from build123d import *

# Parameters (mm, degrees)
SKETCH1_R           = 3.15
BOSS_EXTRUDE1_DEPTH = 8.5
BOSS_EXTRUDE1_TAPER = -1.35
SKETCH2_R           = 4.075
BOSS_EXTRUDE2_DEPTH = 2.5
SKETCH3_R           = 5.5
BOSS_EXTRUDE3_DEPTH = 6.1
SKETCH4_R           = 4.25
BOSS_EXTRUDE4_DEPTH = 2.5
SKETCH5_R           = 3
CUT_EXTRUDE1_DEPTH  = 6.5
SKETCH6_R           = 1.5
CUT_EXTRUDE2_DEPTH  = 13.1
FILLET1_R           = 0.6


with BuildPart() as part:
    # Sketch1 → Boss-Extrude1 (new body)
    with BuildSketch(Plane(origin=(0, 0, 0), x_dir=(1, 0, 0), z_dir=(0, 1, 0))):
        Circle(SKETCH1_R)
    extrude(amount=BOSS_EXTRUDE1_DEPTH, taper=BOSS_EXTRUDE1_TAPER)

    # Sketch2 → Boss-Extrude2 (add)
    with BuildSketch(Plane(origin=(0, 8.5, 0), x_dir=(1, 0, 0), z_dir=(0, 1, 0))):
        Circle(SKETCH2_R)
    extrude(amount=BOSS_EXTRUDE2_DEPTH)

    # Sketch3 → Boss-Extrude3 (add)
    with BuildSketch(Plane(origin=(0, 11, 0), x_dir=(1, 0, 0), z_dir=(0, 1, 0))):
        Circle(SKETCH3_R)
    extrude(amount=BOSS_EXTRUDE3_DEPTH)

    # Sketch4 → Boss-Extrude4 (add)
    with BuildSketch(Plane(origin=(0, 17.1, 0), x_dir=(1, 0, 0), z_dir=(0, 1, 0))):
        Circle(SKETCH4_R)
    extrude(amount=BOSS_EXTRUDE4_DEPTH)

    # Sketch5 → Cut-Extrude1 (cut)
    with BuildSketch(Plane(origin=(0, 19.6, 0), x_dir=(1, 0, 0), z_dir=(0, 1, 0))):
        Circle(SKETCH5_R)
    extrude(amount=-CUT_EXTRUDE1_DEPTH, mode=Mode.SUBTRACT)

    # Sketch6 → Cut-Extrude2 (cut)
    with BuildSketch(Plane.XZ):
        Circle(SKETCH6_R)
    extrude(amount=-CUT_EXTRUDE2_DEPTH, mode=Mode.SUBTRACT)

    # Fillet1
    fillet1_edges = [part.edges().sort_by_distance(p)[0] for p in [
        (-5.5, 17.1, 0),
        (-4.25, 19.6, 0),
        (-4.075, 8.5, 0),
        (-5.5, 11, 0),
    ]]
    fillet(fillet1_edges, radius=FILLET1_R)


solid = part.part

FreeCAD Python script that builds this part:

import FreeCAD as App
import Part
import Sketcher
from FreeCAD import Vector
Q = App.Units.Quantity


def edges_at(feature, points):
    """Names of the edges that pass closest to the given points."""
    edges = feature.Shape.Edges
    near = lambda p: min(range(len(edges)), key=lambda i: edges[i].distToShape(Part.Vertex(*p))[0])
    return sorted({f"Edge{near(p) + 1}" for p in points})

doc = App.newDocument("Part")
body = doc.addObject("PartDesign::Body", "Body")

# Sketch on XZ plane
sketch1 = body.newObject("Sketcher::SketchObject", "Sketch")
sketch1.AttachmentSupport = (doc.getObject("XZ_Plane"), [""])
sketch1.MapMode = "FlatFace"
sketch1.addGeometry(Part.Circle(Vector(0, 0, 0), Vector(0, 0, 1), 3.1), False)
sketch1.addConstraint([
    Sketcher.Constraint("Coincident", 0, 3, -1, 1),
    Sketcher.Constraint("Diameter", 0, Q("6.3 mm")),
])
pad1 = body.newObject("PartDesign::Pad", "Pad")
pad1.Profile = sketch1
pad1.Length = 8.5
pad1.Reversed = True
pad1.TaperAngle = 1.35

# Sketch on XZ plane
sketch2 = body.newObject("Sketcher::SketchObject", "Sketch001")
sketch2.AttachmentSupport = (doc.getObject("XZ_Plane"), [""])
sketch2.MapMode = "FlatFace"
sketch2.AttachmentOffset = App.Placement(Vector(0, 0, -8.5), App.Rotation())
sketch2.addGeometry(Part.Circle(Vector(0, 0, 0), Vector(0, 0, 1), 4.1), False)
sketch2.addConstraint([
    Sketcher.Constraint("Coincident", 0, 3, -1, 1),
    Sketcher.Constraint("Diameter", 0, Q("8.15 mm")),
])
pad2 = body.newObject("PartDesign::Pad", "Pad001")
pad2.Profile = sketch2
pad2.Length = 2.5
pad2.Reversed = True

# Sketch on XZ plane
sketch3 = body.newObject("Sketcher::SketchObject", "Sketch002")
sketch3.AttachmentSupport = (doc.getObject("XZ_Plane"), [""])
sketch3.MapMode = "FlatFace"
sketch3.AttachmentOffset = App.Placement(Vector(0, 0, -11), App.Rotation())
sketch3.addGeometry(Part.Circle(Vector(0, 0, 0), Vector(0, 0, 1), 6), False)
sketch3.addConstraint([
    Sketcher.Constraint("Coincident", 0, 3, -1, 1),
    Sketcher.Constraint("Diameter", 0, Q("11 mm")),
])
pad3 = body.newObject("PartDesign::Pad", "Pad002")
pad3.Profile = sketch3
pad3.Length = 6.1
pad3.Reversed = True

# Sketch on XZ plane
sketch4 = body.newObject("Sketcher::SketchObject", "Sketch003")
sketch4.AttachmentSupport = (doc.getObject("XZ_Plane"), [""])
sketch4.MapMode = "FlatFace"
sketch4.AttachmentOffset = App.Placement(Vector(0, 0, -17.1), App.Rotation())
sketch4.addGeometry(Part.Circle(Vector(0, 0, 0), Vector(0, 0, 1), 4.2), False)
sketch4.addConstraint([
    Sketcher.Constraint("Coincident", 0, 3, -1, 1),
    Sketcher.Constraint("Diameter", 0, Q("8.5 mm")),
])
pad4 = body.newObject("PartDesign::Pad", "Pad003")
pad4.Profile = sketch4
pad4.Length = 2.5
pad4.Reversed = True

# Sketch on XZ plane
sketch5 = body.newObject("Sketcher::SketchObject", "Sketch004")
sketch5.AttachmentSupport = (doc.getObject("XZ_Plane"), [""])
sketch5.MapMode = "FlatFace"
sketch5.AttachmentOffset = App.Placement(Vector(0, 0, -19.6), App.Rotation())
sketch5.addGeometry(Part.Circle(Vector(0, 0, 0), Vector(0, 0, 1), 3), False)
sketch5.addConstraint([
    Sketcher.Constraint("Coincident", 0, 3, -1, 1),
    Sketcher.Constraint("Diameter", 0, Q("6 mm")),
])
pocket1 = body.newObject("PartDesign::Pocket", "Pocket")
pocket1.Profile = sketch5
pocket1.Length = 6.5
pocket1.Reversed = True

# Sketch on XZ plane
sketch6 = body.newObject("Sketcher::SketchObject", "Sketch005")
sketch6.AttachmentSupport = (doc.getObject("XZ_Plane"), [""])
sketch6.MapMode = "FlatFace"
sketch6.addGeometry(Part.Circle(Vector(0, 0, 0), Vector(0, 0, 1), 1.5), False)
sketch6.addConstraint([
    Sketcher.Constraint("Coincident", 0, 3, -1, 1),
    Sketcher.Constraint("Diameter", 0, Q("3 mm")),
])
pocket2 = body.newObject("PartDesign::Pocket", "Pocket001")
pocket2.Profile = sketch6
pocket2.Length = 13.1
doc.recompute()

fillet = body.newObject("PartDesign::Fillet", "Fillet")
fillet.Base = (pocket2, edges_at(pocket2, [
    (-5.5, 17.1, 0),
    (-4.25, 19.6, 0),
    (-4.075, 8.5, 0),
    (-5.5, 11, 0),
]))
fillet.Radius = 0.6

doc.recompute()
